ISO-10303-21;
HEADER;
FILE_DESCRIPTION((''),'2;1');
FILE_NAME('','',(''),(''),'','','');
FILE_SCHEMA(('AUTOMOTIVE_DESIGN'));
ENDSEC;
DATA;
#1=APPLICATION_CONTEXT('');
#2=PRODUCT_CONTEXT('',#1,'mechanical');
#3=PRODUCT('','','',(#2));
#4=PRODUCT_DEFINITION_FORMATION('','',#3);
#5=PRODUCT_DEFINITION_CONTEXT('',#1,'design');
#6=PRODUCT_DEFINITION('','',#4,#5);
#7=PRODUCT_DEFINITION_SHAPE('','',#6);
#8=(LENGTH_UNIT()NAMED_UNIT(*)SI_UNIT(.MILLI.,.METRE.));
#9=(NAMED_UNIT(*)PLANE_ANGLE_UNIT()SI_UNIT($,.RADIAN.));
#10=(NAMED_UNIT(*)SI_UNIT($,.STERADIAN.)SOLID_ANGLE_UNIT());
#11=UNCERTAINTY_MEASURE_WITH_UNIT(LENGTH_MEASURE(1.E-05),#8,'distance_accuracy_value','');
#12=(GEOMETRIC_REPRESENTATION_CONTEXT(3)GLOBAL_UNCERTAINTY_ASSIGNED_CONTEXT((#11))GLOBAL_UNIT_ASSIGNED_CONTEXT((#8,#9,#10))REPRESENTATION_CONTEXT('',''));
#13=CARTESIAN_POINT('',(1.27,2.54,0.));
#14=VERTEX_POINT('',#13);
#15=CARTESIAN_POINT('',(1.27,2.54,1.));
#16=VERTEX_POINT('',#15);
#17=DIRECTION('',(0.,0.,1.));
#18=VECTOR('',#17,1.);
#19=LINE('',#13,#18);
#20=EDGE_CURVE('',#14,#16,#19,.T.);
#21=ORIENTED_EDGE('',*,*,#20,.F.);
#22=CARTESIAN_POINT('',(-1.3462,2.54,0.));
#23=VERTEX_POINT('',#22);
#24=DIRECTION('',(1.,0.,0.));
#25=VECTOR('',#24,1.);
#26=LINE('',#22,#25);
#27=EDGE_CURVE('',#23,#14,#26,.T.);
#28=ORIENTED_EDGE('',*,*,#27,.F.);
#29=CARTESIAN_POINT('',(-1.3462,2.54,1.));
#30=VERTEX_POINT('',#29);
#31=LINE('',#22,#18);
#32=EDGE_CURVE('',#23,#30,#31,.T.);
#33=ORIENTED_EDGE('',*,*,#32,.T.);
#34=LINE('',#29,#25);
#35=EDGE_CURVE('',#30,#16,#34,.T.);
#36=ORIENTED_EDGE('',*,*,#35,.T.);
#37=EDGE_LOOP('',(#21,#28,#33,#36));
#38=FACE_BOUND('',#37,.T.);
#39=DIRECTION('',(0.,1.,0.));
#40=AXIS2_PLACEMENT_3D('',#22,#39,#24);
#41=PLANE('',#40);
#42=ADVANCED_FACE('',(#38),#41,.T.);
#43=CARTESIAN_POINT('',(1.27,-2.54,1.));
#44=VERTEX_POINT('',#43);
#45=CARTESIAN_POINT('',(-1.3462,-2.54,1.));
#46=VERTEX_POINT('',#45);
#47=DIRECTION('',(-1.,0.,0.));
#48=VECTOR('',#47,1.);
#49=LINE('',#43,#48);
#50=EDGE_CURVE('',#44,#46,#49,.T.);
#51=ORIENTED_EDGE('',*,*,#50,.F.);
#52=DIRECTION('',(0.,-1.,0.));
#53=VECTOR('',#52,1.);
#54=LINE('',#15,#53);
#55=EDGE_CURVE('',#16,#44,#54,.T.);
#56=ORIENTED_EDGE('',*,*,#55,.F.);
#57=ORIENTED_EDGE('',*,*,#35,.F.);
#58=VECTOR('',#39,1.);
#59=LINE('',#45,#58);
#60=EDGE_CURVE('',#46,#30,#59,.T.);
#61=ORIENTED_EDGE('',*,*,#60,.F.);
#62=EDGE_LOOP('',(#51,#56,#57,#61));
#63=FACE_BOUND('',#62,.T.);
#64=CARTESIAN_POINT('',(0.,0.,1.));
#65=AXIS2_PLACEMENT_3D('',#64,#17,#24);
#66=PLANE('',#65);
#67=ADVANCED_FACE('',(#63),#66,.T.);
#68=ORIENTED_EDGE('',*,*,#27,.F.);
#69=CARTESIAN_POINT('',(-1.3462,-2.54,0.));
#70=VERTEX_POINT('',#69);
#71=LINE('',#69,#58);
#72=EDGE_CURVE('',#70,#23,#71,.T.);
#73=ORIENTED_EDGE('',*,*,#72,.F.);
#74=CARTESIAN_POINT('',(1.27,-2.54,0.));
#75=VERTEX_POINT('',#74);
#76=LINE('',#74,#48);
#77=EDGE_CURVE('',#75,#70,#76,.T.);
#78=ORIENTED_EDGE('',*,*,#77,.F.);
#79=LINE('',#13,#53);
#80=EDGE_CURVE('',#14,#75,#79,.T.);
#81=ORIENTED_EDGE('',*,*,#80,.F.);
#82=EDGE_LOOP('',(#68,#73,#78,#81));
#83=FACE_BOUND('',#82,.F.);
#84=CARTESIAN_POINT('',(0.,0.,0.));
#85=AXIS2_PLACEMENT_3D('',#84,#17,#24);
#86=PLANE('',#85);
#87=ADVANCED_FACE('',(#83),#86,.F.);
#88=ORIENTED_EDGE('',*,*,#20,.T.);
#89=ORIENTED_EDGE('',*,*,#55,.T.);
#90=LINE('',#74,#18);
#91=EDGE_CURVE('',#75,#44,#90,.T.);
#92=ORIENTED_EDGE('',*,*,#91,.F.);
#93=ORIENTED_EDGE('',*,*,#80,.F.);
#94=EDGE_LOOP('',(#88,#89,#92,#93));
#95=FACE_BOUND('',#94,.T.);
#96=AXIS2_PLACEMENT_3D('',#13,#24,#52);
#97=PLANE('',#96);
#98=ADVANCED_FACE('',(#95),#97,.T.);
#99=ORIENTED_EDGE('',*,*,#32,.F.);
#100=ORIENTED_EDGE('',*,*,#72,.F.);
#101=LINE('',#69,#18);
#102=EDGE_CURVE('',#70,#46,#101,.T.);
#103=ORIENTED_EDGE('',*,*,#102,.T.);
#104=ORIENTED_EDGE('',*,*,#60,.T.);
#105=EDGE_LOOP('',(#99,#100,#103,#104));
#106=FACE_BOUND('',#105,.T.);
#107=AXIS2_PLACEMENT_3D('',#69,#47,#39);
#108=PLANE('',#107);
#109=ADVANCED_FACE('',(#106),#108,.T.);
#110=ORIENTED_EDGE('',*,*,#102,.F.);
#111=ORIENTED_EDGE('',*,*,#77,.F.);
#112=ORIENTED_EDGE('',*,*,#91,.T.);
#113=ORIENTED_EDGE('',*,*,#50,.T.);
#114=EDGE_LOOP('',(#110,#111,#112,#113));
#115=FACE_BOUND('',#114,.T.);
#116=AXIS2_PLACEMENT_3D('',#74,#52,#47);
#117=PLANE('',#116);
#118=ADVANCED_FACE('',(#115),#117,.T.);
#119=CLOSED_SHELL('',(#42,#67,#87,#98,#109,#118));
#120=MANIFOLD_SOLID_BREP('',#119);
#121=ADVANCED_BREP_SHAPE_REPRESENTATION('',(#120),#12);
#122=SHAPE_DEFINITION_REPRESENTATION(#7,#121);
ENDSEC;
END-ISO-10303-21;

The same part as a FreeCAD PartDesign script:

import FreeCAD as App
import Part
import Sketcher

V = App.Vector
Q = App.Units.Quantity

doc = App.newDocument("Part")
body = doc.addObject("PartDesign::Body", "Body")

sketch1 = doc.addObject("Sketcher::SketchObject", "Sketch")
body.addObject(sketch1)
sketch1.AttachmentSupport = (doc.XY_Plane, [""])
sketch1.MapMode = "FlatFace"
sketch1.addGeometry([
    Part.LineSegment(V(1.27, 2.54, 0), V(-1.3462, 2.54, 0)),
    Part.LineSegment(V(-1.3462, 2.54, 0), V(-1.3462, -2.54, 0)),
    Part.LineSegment(V(-1.3462, -2.54, 0), V(1.27, -2.54, 0)),
    Part.LineSegment(V(1.27, -2.54, 0), V(1.27, 2.54, 0)),
], False)
sketch1.addConstraint([
    Sketcher.Constraint("Coincident", 0, 2, 1, 1),
    Sketcher.Constraint("Coincident", 1, 2, 2, 1),
    Sketcher.Constraint("Coincident", 2, 2, 3, 1),
    Sketcher.Constraint("Coincident", 3, 2, 0, 1),
    Sketcher.Constraint("Horizontal", 0),
    Sketcher.Constraint("Vertical", 1),
    Sketcher.Constraint("Horizontal", 2),
    Sketcher.Constraint("Vertical", 3),
    Sketcher.Constraint("DistanceY", 1, 2, 1, 1, Q("0.2 in")),
    Sketcher.Constraint("DistanceY", -1, 1, 0, 2, Q("0.1 in")),
    Sketcher.Constraint("DistanceX", 0, 2, 0, 1, Q("0.103 in")),
    Sketcher.Constraint("DistanceX", -1, 1, 2, 2, Q("0.05 in")),
])
pad1 = doc.addObject("PartDesign::Pad", "Pad")
body.addObject(pad1)
pad1.Profile = sketch1
pad1.Length = 1

doc.recompute()
